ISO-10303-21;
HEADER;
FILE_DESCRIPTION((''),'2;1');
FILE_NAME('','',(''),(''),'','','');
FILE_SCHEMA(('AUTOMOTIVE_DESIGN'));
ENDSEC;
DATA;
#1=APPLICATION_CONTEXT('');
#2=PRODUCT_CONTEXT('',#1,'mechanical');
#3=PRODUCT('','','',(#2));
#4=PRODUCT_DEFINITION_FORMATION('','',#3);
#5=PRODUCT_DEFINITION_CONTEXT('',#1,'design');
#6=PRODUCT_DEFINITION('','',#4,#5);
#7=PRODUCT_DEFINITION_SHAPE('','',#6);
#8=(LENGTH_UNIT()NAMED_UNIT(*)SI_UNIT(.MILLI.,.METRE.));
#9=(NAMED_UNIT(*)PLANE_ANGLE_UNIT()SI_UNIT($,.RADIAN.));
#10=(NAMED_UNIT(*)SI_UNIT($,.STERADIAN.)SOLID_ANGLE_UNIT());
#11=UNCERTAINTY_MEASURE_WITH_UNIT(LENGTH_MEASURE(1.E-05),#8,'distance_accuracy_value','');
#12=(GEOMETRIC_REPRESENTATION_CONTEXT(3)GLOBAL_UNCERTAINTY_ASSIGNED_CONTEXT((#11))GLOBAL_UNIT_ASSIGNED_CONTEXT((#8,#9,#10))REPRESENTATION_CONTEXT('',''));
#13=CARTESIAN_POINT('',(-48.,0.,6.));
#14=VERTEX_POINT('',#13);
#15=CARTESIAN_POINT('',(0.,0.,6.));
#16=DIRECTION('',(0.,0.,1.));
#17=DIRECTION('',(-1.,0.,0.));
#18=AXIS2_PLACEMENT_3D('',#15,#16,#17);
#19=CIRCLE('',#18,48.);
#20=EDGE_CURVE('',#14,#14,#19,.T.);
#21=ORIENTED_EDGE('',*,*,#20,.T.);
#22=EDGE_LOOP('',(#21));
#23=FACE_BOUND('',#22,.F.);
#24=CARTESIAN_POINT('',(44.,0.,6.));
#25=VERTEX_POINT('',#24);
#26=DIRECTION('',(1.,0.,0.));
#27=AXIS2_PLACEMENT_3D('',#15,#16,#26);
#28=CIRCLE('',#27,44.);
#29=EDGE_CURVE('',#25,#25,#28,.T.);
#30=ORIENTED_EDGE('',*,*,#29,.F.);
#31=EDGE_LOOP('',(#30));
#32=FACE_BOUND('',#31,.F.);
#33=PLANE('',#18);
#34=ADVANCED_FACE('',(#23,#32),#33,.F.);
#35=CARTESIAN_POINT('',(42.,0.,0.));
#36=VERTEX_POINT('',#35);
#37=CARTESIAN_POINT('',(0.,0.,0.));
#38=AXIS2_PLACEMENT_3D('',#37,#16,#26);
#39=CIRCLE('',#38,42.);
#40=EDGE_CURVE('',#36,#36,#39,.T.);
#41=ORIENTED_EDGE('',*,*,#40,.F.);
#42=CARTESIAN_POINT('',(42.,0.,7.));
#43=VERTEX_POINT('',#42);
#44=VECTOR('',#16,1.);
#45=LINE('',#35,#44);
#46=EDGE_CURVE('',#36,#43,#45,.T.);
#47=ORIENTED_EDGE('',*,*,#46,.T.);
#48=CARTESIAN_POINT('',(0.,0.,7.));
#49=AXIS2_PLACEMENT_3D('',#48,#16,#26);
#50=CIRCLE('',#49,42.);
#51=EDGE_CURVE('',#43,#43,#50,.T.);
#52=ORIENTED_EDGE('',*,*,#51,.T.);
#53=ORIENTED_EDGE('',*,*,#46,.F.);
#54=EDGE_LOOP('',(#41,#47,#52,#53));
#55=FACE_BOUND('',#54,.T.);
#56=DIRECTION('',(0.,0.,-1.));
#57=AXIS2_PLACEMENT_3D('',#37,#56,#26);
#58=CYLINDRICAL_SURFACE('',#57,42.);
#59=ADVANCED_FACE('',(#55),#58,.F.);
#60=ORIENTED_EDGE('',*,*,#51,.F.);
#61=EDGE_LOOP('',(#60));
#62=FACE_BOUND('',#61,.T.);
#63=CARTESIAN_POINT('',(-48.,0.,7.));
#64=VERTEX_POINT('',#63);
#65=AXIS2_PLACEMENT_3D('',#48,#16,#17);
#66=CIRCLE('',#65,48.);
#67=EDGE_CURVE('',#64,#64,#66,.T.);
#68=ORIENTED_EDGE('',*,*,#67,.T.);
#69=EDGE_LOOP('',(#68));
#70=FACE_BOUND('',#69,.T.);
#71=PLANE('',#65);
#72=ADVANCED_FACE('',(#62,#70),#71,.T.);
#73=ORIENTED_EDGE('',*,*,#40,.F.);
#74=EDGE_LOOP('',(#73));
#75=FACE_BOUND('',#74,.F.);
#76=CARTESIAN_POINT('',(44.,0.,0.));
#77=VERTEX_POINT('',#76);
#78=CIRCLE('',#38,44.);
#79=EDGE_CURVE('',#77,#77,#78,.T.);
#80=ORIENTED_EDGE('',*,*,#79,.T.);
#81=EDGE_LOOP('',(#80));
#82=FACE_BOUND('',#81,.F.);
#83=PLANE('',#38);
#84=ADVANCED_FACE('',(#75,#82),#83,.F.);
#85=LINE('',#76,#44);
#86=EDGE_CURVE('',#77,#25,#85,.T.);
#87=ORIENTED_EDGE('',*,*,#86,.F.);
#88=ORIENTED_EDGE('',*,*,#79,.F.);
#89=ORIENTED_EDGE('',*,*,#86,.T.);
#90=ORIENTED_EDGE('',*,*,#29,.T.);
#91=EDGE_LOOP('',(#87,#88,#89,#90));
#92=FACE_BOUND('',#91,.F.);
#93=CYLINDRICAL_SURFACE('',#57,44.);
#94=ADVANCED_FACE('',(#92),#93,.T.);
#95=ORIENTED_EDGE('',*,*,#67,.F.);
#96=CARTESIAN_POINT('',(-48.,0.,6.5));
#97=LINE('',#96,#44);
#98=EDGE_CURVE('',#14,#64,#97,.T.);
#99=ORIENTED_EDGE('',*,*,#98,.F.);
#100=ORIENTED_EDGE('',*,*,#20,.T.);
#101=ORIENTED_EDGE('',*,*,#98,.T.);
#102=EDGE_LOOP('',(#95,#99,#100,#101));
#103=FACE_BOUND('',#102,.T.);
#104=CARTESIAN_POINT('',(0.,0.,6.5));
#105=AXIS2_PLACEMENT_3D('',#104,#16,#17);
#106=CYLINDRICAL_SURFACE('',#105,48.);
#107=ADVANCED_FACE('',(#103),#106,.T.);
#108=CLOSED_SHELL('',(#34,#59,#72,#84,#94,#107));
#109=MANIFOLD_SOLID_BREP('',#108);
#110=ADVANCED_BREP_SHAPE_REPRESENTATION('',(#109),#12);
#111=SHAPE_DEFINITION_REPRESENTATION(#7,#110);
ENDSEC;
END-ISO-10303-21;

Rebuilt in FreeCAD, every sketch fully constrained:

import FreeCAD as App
import Part
import Sketcher
from FreeCAD import Vector
Q = App.Units.Quantity

doc = App.newDocument("Part")
body = doc.addObject("PartDesign::Body", "Body")

# Sketch on XY plane
sketch1 = body.newObject("Sketcher::SketchObject", "Sketch")
sketch1.AttachmentSupport = (doc.getObject("XY_Plane"), [""])
sketch1.MapMode = "FlatFace"
sketch1.addGeometry(Part.Circle(Vector(0, 0, 0), Vector(0, 0, 1), 44), False)
sketch1.addGeometry(Part.Circle(Vector(0, 0, 0), Vector(0, 0, 1), 42), False)
sketch1.addConstraint(Sketcher.Constraint("Coincident", 0, 3, -1, 1))
sketch1.addConstraint(Sketcher.Constraint("Coincident", 1, 3, -1, 1))
sketch1.addConstraint(Sketcher.Constraint("Diameter", 0, Q("88 mm")))
sketch1.addConstraint(Sketcher.Constraint("Diameter", 1, Q("84 mm")))
pad1 = body.newObject("PartDesign::Pad", "Pad")
pad1.Profile = sketch1
pad1.Length = 7

# Sketch on XZ plane
sketch2 = body.newObject("Sketcher::SketchObject", "Sketch001")
sketch2.AttachmentSupport = (doc.getObject("XZ_Plane"), [""])
sketch2.MapMode = "FlatFace"
sketch2.addGeometry(Part.LineSegment(Vector(-48, 7, 0), Vector(-48, 6, 0)), False)
sketch2.addGeometry(Part.LineSegment(Vector(-48, 6, 0), Vector(-44, 6, 0)), False)
sketch2.addGeometry(Part.LineSegment(Vector(-44, 6, 0), Vector(-44, 7, 0)), False)
sketch2.addGeometry(Part.LineSegment(Vector(-44, 7, 0), Vector(-48, 7, 0)), False)
sketch2.addConstraint(Sketcher.Constraint("Coincident", 0, 2, 1, 1))
sketch2.addConstraint(Sketcher.Constraint("Coincident", 1, 2, 2, 1))
sketch2.addConstraint(Sketcher.Constraint("Coincident", 2, 2, 3, 1))
sketch2.addConstraint(Sketcher.Constraint("Coincident", 3, 2, 0, 1))
sketch2.addConstraint(Sketcher.Constraint("Vertical", 0))
sketch2.addConstraint(Sketcher.Constraint("Horizontal", 1))
sketch2.addConstraint(Sketcher.Constraint("Vertical", 2))
sketch2.addConstraint(Sketcher.Constraint("Horizontal", 3))
sketch2.addConstraint(Sketcher.Constraint("DistanceX", 1, 1, 1, 2, Q("4 mm")))
sketch2.addConstraint(Sketcher.Constraint("DistanceY", 0, 2, 0, 1, Q("1 mm")))
sketch2.addConstraint(Sketcher.Constraint("DistanceX", 0, 2, -1, 1, Q("48 mm")))
sketch2.addConstraint(Sketcher.Constraint("DistanceY", -1, 1, 0, 2, Q("6 mm")))
revolution = body.newObject("PartDesign::Revolution", "Revolution")
revolution.Profile = sketch2
revolution.ReferenceAxis = (sketch2, ["V_Axis"])
revolution.Angle = 360

doc.recompute()
